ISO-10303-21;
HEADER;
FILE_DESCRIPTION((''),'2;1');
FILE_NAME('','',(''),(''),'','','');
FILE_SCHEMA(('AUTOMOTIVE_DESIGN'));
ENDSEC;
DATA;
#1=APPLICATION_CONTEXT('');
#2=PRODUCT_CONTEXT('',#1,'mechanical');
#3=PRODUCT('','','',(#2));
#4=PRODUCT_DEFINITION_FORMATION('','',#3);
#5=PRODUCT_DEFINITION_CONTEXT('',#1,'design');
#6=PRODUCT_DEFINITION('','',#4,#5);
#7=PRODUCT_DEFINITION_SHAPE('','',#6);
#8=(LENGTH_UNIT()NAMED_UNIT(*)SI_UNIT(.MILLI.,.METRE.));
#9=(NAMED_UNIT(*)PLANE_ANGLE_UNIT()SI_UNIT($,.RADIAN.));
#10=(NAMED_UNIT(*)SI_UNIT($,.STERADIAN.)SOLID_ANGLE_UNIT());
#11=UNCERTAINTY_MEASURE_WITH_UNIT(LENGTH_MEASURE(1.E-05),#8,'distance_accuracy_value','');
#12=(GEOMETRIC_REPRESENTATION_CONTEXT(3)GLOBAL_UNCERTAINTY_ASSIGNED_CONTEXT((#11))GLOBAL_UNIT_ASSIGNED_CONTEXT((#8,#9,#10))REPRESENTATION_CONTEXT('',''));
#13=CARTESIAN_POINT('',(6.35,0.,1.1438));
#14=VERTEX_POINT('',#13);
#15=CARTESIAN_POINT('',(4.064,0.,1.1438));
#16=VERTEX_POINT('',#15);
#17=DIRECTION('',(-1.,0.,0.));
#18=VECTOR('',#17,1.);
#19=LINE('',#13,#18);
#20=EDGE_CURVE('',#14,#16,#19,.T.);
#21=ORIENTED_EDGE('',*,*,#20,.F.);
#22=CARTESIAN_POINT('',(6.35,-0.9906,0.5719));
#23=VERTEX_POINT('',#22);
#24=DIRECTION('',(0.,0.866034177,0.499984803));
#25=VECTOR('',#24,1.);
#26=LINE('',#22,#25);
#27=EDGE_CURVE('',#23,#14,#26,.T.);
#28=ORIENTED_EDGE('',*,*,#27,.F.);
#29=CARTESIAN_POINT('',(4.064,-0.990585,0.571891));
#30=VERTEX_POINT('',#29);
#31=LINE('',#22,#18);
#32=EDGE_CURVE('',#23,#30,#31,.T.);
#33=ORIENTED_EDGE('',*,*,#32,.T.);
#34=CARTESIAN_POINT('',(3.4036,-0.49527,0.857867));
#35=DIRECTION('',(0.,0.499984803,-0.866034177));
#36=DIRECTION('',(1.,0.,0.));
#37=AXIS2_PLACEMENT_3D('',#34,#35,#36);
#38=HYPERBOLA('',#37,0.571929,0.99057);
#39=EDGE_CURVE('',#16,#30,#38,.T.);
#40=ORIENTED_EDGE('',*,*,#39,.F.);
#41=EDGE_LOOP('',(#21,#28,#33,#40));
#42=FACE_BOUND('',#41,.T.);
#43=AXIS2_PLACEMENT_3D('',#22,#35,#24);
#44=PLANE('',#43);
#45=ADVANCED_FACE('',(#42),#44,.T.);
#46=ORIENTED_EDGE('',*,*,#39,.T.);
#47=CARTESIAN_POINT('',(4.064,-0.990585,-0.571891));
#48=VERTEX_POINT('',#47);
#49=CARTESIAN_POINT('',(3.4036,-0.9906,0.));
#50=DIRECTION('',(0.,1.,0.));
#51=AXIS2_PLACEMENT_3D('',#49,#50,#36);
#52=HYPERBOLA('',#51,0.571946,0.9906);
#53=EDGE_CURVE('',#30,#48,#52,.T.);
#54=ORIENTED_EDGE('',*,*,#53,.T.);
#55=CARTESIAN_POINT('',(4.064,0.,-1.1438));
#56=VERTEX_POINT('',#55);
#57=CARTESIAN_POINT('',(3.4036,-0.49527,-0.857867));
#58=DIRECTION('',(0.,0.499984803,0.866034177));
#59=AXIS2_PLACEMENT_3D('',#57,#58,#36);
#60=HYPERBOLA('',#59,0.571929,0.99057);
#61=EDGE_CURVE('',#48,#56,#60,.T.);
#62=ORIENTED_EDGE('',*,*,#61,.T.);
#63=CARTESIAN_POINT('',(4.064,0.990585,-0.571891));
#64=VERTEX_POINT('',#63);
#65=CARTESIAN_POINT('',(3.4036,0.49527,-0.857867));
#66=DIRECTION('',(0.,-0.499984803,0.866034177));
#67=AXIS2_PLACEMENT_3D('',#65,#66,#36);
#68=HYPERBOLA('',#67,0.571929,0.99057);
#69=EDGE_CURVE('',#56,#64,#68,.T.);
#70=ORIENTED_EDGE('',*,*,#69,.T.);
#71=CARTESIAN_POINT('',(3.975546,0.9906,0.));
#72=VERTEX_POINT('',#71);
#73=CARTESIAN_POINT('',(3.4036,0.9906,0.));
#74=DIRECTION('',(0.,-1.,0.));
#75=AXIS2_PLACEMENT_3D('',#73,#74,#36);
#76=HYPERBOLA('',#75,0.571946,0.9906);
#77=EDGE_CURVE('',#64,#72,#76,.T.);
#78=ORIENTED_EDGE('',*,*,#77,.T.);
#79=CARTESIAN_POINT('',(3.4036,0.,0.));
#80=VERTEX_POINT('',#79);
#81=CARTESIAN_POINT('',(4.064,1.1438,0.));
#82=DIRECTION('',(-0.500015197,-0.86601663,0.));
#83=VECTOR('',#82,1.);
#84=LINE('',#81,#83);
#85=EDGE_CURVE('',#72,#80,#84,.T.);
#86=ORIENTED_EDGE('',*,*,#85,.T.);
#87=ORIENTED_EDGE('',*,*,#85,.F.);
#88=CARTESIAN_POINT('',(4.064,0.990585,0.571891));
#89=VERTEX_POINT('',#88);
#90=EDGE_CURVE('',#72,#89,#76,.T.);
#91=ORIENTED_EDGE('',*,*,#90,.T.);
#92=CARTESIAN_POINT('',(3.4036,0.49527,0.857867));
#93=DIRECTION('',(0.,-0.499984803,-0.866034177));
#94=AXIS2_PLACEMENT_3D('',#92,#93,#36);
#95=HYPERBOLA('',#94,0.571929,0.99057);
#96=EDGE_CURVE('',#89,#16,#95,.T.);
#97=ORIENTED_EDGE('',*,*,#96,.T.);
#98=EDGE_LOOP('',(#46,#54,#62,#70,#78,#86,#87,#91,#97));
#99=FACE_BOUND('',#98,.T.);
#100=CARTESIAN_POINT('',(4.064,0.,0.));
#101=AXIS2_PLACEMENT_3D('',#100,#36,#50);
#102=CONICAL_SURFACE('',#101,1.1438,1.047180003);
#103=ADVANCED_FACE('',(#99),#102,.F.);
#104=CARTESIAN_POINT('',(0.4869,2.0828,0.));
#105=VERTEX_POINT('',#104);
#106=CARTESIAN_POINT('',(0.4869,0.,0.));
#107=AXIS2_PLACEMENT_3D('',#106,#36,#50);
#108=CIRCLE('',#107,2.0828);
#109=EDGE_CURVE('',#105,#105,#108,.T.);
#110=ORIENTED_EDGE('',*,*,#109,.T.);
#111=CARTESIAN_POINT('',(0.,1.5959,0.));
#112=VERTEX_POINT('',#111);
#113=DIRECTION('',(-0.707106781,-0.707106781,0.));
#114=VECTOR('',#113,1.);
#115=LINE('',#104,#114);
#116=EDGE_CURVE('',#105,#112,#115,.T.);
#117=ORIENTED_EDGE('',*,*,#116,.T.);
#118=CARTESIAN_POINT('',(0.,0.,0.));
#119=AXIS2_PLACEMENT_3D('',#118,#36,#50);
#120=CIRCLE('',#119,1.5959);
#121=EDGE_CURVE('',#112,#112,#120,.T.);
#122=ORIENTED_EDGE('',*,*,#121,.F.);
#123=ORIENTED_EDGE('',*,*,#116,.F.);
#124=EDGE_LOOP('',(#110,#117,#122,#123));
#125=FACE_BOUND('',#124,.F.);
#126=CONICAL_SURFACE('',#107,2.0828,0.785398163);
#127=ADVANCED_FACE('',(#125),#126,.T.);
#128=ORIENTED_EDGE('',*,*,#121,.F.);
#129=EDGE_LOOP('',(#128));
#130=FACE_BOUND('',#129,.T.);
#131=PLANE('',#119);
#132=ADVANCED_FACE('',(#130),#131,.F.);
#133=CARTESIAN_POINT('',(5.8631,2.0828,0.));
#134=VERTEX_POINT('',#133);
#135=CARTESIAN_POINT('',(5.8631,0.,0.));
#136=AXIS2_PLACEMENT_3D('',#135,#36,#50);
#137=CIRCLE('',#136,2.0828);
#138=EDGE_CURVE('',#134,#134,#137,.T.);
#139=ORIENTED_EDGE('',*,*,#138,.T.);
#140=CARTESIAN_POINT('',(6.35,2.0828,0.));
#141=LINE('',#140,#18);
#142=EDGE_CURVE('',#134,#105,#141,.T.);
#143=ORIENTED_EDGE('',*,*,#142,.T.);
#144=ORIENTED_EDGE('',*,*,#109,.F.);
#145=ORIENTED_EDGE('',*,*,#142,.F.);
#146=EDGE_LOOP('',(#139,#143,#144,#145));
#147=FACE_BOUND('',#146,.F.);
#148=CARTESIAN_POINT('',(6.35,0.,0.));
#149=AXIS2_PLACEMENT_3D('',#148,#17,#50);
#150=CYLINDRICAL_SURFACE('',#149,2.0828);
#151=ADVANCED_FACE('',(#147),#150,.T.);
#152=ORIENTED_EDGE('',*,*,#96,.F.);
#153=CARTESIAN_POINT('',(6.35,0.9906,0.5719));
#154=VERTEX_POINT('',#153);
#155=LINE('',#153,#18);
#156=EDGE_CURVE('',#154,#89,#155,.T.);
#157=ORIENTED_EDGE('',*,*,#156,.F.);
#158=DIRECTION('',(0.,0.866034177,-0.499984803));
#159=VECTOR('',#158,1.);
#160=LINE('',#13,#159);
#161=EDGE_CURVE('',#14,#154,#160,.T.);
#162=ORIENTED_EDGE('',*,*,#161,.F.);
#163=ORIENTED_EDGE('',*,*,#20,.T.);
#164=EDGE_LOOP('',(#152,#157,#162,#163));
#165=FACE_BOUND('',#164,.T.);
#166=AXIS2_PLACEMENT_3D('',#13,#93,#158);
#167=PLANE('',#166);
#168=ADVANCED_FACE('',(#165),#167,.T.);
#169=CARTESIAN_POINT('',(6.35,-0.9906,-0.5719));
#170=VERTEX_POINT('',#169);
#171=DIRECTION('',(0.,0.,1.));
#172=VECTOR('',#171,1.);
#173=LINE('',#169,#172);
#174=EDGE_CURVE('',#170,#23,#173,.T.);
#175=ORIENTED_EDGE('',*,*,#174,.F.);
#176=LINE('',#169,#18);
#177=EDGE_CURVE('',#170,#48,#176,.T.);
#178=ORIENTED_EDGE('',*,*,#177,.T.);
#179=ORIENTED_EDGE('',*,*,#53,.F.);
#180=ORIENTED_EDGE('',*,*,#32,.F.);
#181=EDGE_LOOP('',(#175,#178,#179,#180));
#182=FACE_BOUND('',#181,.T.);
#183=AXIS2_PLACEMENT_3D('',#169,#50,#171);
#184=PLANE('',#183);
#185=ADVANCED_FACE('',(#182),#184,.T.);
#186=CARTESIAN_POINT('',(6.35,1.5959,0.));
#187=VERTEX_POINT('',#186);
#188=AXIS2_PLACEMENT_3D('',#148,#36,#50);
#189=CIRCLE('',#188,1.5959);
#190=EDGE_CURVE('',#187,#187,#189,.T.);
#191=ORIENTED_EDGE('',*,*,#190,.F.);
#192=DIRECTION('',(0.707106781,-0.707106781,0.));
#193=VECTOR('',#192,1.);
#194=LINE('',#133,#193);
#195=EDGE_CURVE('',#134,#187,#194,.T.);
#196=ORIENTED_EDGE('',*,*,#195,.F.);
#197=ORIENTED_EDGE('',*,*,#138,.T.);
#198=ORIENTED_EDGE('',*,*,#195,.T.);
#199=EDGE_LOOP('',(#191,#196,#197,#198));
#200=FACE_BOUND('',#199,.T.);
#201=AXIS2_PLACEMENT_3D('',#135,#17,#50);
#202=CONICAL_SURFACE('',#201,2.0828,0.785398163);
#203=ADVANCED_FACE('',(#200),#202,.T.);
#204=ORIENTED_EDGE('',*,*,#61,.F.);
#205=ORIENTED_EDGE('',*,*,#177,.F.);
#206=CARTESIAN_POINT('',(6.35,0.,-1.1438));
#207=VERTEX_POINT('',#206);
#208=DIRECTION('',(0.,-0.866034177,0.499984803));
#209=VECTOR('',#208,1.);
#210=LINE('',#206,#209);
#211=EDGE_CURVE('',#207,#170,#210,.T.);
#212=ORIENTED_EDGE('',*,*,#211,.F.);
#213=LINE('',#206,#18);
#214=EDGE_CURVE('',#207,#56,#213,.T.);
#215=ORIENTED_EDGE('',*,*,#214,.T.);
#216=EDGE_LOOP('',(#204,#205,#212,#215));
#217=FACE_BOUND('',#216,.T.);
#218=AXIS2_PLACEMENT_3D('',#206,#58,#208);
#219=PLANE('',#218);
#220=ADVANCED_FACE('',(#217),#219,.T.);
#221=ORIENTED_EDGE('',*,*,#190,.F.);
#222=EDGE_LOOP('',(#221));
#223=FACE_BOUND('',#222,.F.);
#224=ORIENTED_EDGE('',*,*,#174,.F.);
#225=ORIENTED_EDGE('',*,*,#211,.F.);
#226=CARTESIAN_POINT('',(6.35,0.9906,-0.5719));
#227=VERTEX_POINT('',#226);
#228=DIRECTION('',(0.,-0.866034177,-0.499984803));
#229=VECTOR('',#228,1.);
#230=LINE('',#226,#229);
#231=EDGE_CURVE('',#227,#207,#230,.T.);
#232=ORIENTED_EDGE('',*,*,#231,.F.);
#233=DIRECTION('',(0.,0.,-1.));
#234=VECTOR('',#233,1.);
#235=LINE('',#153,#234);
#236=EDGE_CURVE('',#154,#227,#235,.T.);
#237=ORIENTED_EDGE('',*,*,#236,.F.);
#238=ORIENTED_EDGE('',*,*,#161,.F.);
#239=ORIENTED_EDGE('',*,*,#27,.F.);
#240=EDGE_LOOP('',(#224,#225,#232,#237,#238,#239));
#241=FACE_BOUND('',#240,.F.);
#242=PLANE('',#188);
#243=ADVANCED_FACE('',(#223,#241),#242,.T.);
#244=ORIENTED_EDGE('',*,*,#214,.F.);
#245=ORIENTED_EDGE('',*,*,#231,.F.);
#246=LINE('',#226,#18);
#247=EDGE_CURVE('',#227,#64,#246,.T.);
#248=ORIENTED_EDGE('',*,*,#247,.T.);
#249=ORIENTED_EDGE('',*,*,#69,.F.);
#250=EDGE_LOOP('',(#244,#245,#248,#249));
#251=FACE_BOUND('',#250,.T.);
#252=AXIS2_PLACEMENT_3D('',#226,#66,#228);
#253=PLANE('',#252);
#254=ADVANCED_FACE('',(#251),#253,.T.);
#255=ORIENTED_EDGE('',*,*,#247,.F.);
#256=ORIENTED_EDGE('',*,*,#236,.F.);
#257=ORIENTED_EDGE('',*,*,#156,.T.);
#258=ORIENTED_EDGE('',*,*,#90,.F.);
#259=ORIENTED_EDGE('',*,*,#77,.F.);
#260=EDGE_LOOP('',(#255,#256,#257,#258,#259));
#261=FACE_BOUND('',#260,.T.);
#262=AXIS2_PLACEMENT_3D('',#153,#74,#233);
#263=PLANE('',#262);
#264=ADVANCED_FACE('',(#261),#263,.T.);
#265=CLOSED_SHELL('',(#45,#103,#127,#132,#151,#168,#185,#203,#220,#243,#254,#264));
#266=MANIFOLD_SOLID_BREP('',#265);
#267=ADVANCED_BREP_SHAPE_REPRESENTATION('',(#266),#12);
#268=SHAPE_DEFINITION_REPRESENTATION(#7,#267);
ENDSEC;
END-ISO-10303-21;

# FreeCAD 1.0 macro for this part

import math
import FreeCAD as App
import Part
import Sketcher
Q = App.Units.Quantity


def edges_at(feature, points):
    """Names of the edges that pass closest to the given points."""
    edges = feature.Shape.Edges
    near = lambda p: min(range(len(edges)), key=lambda i: edges[i].distToShape(Part.Vertex(*p))[0])
    return sorted({f"Edge{near(p) + 1}" for p in points})


def add_polygon(sketch, points):
    """Adds a closed chain of lines whose ends are joined by coincident constraints."""
    first, n = sketch.GeometryCount, len(points)
    for a, b in zip(points, points[1:] + points[:1]):
        sketch.addGeometry(Part.LineSegment(App.Vector(*a, 0), App.Vector(*b, 0)), False)
    for i in range(n):
        sketch.addConstraint(Sketcher.Constraint("Coincident", first + i, 2, first + (i + 1) % n, 1))

doc = App.newDocument("Part")
body = doc.addObject("PartDesign::Body", "Body")

# Sketch on XY plane
sketch1 = body.newObject("Sketcher::SketchObject", "Sketch")
sketch1.AttachmentSupport = (doc.getObject("XY_Plane"), [""])
sketch1.MapMode = "FlatFace"
add_polygon(sketch1, [(0, 2.0828), (0, 0), (3.4036, 0), (4.064, 1.1438), (6.35, 1.1438), (6.35, 2.0828)])  # lines 0-5
sketch1.addConstraint([
    Sketcher.Constraint("Vertical", 0),
    Sketcher.Constraint("Horizontal", 1),
    Sketcher.Constraint("Horizontal", 3),
    Sketcher.Constraint("Vertical", 4),
    Sketcher.Constraint("Horizontal", 5),
    Sketcher.Constraint("Coincident", 0, 2, -1, 1),
    Sketcher.Constraint("DistanceX", 3, 1, 3, 2, Q("0.09 in")),
    Sketcher.Constraint("DistanceX", 5, 2, 5, 1, Q("0.25 in")),
    Sketcher.Constraint("Angle", 2, Q("59.999 deg")),
    Sketcher.Constraint("DistanceX", 1, 1, 1, 2, Q("0.134 in")),
    Sketcher.Constraint("DistanceY", 0, 2, 0, 1, Q("0.082 in")),
])
revolution = body.newObject("PartDesign::Revolution", "Revolution")
revolution.Profile = sketch1
revolution.ReferenceAxis = (sketch1, ["H_Axis"])
revolution.Angle = 360
doc.recompute()

chamfer = body.newObject("PartDesign::Chamfer", "Chamfer")
chamfer.Base = (revolution, edges_at(revolution, [(6.35, -2.083, 0)]))
chamfer.Size = 0.4869

# Sketch on YZ plane
sketch2 = body.newObject("Sketcher::SketchObject", "Sketch001")
sketch2.AttachmentSupport = (doc.getObject("YZ_Plane"), [""])
sketch2.MapMode = "FlatFace"
sketch2.AttachmentOffset = App.Placement(App.Vector(0, 0, 0.25 * 25.4), App.Rotation())
sketch2.addGeometry([
    Part.LineSegment(App.Vector(0.9906, -0.5719, 0), App.Vector(0, -1.1438, 0)),  # 0
    Part.ArcOfCircle(Part.Circle(App.Vector(0, 0, 0), App.Vector(0, 0, 1), 1.1438), math.radians(-90), math.radians(-29.998995)),  # 1
    Part.ArcOfCircle(Part.Circle(App.Vector(0, 0, 0), App.Vector(0, 0, 1), 1.1438), math.radians(-150.001005), math.radians(-90)),  # 2
    Part.LineSegment(App.Vector(0, -1.1438, 0), App.Vector(-0.9906, -0.5719, 0)),  # 3
    Part.LineSegment(App.Vector(0.9906, 0.5719, 0), App.Vector(0.9906, -0.5719, 0)),  # 4
    Part.ArcOfCircle(Part.Circle(App.Vector(0, 0, 0), App.Vector(0, 0, 1), 1.1438), math.radians(-29.998995), math.radians(29.998995)),  # 5
    Part.ArcOfCircle(Part.Circle(App.Vector(0, 0, 0), App.Vector(0, 0, 1), 1.1438), math.radians(150.001005), math.radians(209.998995)),  # 6
    Part.LineSegment(App.Vector(-0.9906, 0.5719, 0), App.Vector(-0.9906, -0.5719, 0)),  # 7
    Part.LineSegment(App.Vector(0, 1.1438, 0), App.Vector(0.9906, 0.5719, 0)),  # 8
    Part.ArcOfCircle(Part.Circle(App.Vector(0, 0, 0), App.Vector(0, 0, 1), 1.1438), math.radians(29.998995), math.radians(90)),  # 9
    Part.ArcOfCircle(Part.Circle(App.Vector(0, 0, 0), App.Vector(0, 0, 1), 1.1438), math.radians(90), math.radians(150.001005)),  # 10
    Part.LineSegment(App.Vector(0, 1.1438, 0), App.Vector(-0.9906, 0.5719, 0)),  # 11
], False)
sketch2.addConstraint([
    Sketcher.Constraint("Coincident", 0, 1, 1, 2),
    Sketcher.Constraint("Coincident", 1, 1, 0, 2),
    Sketcher.Constraint("Coincident", 2, 1, 3, 2),
    Sketcher.Constraint("Coincident", 3, 1, 2, 2),
    Sketcher.Constraint("Coincident", 4, 1, 5, 2),
    Sketcher.Constraint("Coincident", 5, 1, 4, 2),
    Sketcher.Constraint("Coincident", 6, 1, 7, 1),
    Sketcher.Constraint("Coincident", 7, 2, 6, 2),
    Sketcher.Constraint("Coincident", 8, 1, 9, 2),
    Sketcher.Constraint("Coincident", 9, 1, 8, 2),
    Sketcher.Constraint("Coincident", 10, 1, 11, 1),
    Sketcher.Constraint("Coincident", 11, 2, 10, 2),
    Sketcher.Constraint("Vertical", 4),
    Sketcher.Constraint("Vertical", 7),
    Sketcher.Constraint("Coincident", 1, 3, -1, 1),
    Sketcher.Constraint("Coincident", 2, 3, -1, 1),
    Sketcher.Constraint("Coincident", 5, 3, -1, 1),
    Sketcher.Constraint("Coincident", 6, 3, -1, 1),
    Sketcher.Constraint("Coincident", 9, 3, -1, 1),
    Sketcher.Constraint("Coincident", 10, 3, -1, 1),
    Sketcher.Constraint("Coincident", 3, 1, 1, 1),
    Sketcher.Constraint("Coincident", 5, 1, 0, 1),
    Sketcher.Constraint("Coincident", 7, 2, 2, 1),
    Sketcher.Constraint("Coincident", 9, 1, 4, 1),
    Sketcher.Constraint("Coincident", 10, 1, 8, 1),
    Sketcher.Constraint("PointOnObject", 1, 1, -2),
    Sketcher.Constraint("PointOnObject", 8, 1, -2),
    Sketcher.Constraint("Parallel", 3, 8),
    Sketcher.Constraint("Parallel", 0, 11),
    Sketcher.Constraint("Angle", 0, Q("-150.001 deg")),
    Sketcher.Constraint("Radius", 1, 1.1438),
])
pad1 = body.newObject("PartDesign::Pad", "Pad")
pad1.Profile = sketch2
pad1.Type = "UpToFirst"
pad1.Reversed = True
doc.recompute()

chamfer2 = body.newObject("PartDesign::Chamfer", "Chamfer001")
chamfer2.Base = (pad1, edges_at(pad1, [(0, -2.083, 0)]))
chamfer2.Size = 0.4869

doc.recompute()
